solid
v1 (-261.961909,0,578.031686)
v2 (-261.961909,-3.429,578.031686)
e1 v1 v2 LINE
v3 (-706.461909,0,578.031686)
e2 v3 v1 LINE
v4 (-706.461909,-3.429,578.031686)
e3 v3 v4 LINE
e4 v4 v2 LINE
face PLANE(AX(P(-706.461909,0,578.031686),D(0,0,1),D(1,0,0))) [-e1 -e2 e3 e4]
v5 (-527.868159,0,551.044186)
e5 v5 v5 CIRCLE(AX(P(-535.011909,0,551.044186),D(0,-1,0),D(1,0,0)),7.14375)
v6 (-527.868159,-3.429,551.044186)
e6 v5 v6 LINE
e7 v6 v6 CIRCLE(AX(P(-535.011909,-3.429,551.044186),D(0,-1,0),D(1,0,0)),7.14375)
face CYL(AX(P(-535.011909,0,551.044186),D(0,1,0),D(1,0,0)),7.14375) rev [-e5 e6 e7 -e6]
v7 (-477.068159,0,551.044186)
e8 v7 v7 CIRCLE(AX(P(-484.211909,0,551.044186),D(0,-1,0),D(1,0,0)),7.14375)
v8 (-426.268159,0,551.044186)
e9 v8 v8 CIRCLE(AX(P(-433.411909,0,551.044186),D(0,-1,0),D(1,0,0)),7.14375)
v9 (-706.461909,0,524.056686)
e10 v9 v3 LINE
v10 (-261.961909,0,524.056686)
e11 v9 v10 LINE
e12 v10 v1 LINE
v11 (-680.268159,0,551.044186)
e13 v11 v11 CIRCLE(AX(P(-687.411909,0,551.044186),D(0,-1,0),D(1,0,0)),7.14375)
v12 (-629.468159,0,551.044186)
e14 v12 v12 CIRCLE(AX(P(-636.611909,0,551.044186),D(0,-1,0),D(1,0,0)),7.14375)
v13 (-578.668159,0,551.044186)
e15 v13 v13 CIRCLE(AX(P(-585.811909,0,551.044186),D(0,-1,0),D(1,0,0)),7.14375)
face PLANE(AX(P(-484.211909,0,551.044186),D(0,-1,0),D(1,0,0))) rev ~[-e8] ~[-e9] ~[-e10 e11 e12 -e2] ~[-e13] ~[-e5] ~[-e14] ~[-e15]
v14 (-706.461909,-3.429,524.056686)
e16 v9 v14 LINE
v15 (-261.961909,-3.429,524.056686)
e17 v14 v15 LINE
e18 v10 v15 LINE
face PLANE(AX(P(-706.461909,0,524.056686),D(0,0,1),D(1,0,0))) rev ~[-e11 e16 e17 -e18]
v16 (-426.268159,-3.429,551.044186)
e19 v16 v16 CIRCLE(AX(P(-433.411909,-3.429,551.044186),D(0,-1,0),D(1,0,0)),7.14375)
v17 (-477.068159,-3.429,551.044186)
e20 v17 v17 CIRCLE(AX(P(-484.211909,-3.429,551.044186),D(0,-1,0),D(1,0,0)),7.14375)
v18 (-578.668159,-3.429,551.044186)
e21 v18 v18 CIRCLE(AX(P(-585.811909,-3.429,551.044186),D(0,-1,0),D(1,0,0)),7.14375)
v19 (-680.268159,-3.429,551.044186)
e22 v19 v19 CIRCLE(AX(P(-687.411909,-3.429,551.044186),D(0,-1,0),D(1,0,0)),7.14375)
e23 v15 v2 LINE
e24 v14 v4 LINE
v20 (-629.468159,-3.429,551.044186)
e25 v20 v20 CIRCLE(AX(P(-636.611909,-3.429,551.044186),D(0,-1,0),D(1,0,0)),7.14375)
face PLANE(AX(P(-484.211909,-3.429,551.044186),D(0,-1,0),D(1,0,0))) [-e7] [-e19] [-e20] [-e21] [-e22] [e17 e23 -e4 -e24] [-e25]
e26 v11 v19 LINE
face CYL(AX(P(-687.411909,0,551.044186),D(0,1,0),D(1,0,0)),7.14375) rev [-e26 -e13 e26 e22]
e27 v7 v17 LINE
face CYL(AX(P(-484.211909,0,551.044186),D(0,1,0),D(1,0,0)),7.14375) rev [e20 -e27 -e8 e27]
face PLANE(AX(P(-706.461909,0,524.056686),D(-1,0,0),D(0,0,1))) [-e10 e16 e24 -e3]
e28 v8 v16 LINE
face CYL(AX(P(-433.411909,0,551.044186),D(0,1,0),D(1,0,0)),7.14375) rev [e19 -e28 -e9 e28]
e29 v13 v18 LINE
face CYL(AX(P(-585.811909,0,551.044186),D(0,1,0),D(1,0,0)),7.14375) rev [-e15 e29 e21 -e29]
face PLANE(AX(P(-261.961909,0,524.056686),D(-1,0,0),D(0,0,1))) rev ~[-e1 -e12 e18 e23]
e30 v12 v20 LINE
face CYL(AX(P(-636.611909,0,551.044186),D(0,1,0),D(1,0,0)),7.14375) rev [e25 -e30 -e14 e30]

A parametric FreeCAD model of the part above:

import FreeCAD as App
import Part
import Sketcher
Q = App.Units.Quantity

doc = App.newDocument("Part")
body = doc.addObject("PartDesign::Body", "Body")

# Sketch on XZ plane
sketch1 = doc.addObject("Sketcher::SketchObject", "Sketch")
body.addObject(sketch1)
sketch1.AttachmentSupport = (doc.XZ_Plane, [""])
sketch1.MapMode = "FlatFace"
sketch1.addGeometry(Part.LineSegment(App.Vector(-706, 578, 0), App.Vector(-706, 524, 0)), False)
sketch1.addGeometry(Part.LineSegment(App.Vector(-706, 524, 0), App.Vector(-262, 524, 0)), False)
sketch1.addGeometry(Part.LineSegment(App.Vector(-262, 524, 0), App.Vector(-262, 578, 0)), False)
sketch1.addGeometry(Part.LineSegment(App.Vector(-262, 578, 0), App.Vector(-706, 578, 0)), False)
sketch1.addGeometry(Part.Circle(App.Vector(-687, 551, 0), App.Vector(0, 0, 1), 7), False)
sketch1.addGeometry(Part.Circle(App.Vector(-637, 551, 0), App.Vector(0, 0, 1), 7), False)
sketch1.addGeometry(Part.Circle(App.Vector(-586, 551, 0), App.Vector(0, 0, 1), 7), False)
sketch1.addGeometry(Part.Circle(App.Vector(-535, 551, 0), App.Vector(0, 0, 1), 7), False)
sketch1.addGeometry(Part.Circle(App.Vector(-484, 551, 0), App.Vector(0, 0, 1), 7), False)
sketch1.addGeometry(Part.Circle(App.Vector(-433, 551, 0), App.Vector(0, 0, 1), 7), False)
sketch1.addConstraint(Sketcher.Constraint("Coincident", 0, 2, 1, 1))
sketch1.addConstraint(Sketcher.Constraint("Coincident", 1, 2, 2, 1))
sketch1.addConstraint(Sketcher.Constraint("Coincident", 2, 2, 3, 1))
sketch1.addConstraint(Sketcher.Constraint("Coincident", 3, 2, 0, 1))
sketch1.addConstraint(Sketcher.Constraint("Vertical", 0))
sketch1.addConstraint(Sketcher.Constraint("Horizontal", 1))
sketch1.addConstraint(Sketcher.Constraint("Vertical", 2))
sketch1.addConstraint(Sketcher.Constraint("Horizontal", 3))
sketch1.addConstraint(Sketcher.Constraint("Equal", 4, 5))
sketch1.addConstraint(Sketcher.Constraint("Equal", 5, 6))
sketch1.addConstraint(Sketcher.Constraint("Equal", 6, 7))
sketch1.addConstraint(Sketcher.Constraint("Equal", 7, 8))
sketch1.addConstraint(Sketcher.Constraint("Equal", 8, 9))
sketch1.addConstraint(Sketcher.Constraint("Horizontal", 4, 3, 5, 3))
sketch1.addConstraint(Sketcher.Constraint("Horizontal", 5, 3, 6, 3))
sketch1.addConstraint(Sketcher.Constraint("Horizontal", 6, 3, 7, 3))
sketch1.addConstraint(Sketcher.Constraint("Horizontal", 7, 3, 8, 3))
sketch1.addConstraint(Sketcher.Constraint("Horizontal", 8, 3, 9, 3))
sketch1.addConstraint(Sketcher.Constraint("Diameter", 4, Q("0.5625 in")))
sketch1.addConstraint(Sketcher.Constraint("DistanceX", 1, 1, 1, 2, Q("17.5 in")))
sketch1.addConstraint(Sketcher.Constraint("DistanceX", 4, 3, 5, 3, Q("2 in")))
sketch1.addConstraint(Sketcher.Constraint("DistanceX", 5, 3, 6, 3, Q("2 in")))
sketch1.addConstraint(Sketcher.Constraint("DistanceX", 6, 3, 7, 3, Q("2 in")))
sketch1.addConstraint(Sketcher.Constraint("DistanceX", 7, 3, 8, 3, Q("2 in")))
sketch1.addConstraint(Sketcher.Constraint("DistanceX", 8, 3, 9, 3, Q("2 in")))
sketch1.addConstraint(Sketcher.Constraint("DistanceY", 0, 2, 0, 1, Q("2.125 in")))
sketch1.addConstraint(Sketcher.Constraint("DistanceX", 0, 2, 4, 3, Q("0.75 in")))
sketch1.addConstraint(Sketcher.Constraint("DistanceY", 0, 2, 4, 3, Q("1.0625 in")))
sketch1.addConstraint(Sketcher.Constraint("DistanceX", 4, 3, -1, 1, 687.411909))
sketch1.addConstraint(Sketcher.Constraint("DistanceY", -1, 1, 4, 3, 551.044186))
pad1 = doc.addObject("PartDesign::Pad", "Pad")
body.addObject(pad1)
pad1.Profile = sketch1
pad1.Length = Q("0.135 in")

doc.recompute()
